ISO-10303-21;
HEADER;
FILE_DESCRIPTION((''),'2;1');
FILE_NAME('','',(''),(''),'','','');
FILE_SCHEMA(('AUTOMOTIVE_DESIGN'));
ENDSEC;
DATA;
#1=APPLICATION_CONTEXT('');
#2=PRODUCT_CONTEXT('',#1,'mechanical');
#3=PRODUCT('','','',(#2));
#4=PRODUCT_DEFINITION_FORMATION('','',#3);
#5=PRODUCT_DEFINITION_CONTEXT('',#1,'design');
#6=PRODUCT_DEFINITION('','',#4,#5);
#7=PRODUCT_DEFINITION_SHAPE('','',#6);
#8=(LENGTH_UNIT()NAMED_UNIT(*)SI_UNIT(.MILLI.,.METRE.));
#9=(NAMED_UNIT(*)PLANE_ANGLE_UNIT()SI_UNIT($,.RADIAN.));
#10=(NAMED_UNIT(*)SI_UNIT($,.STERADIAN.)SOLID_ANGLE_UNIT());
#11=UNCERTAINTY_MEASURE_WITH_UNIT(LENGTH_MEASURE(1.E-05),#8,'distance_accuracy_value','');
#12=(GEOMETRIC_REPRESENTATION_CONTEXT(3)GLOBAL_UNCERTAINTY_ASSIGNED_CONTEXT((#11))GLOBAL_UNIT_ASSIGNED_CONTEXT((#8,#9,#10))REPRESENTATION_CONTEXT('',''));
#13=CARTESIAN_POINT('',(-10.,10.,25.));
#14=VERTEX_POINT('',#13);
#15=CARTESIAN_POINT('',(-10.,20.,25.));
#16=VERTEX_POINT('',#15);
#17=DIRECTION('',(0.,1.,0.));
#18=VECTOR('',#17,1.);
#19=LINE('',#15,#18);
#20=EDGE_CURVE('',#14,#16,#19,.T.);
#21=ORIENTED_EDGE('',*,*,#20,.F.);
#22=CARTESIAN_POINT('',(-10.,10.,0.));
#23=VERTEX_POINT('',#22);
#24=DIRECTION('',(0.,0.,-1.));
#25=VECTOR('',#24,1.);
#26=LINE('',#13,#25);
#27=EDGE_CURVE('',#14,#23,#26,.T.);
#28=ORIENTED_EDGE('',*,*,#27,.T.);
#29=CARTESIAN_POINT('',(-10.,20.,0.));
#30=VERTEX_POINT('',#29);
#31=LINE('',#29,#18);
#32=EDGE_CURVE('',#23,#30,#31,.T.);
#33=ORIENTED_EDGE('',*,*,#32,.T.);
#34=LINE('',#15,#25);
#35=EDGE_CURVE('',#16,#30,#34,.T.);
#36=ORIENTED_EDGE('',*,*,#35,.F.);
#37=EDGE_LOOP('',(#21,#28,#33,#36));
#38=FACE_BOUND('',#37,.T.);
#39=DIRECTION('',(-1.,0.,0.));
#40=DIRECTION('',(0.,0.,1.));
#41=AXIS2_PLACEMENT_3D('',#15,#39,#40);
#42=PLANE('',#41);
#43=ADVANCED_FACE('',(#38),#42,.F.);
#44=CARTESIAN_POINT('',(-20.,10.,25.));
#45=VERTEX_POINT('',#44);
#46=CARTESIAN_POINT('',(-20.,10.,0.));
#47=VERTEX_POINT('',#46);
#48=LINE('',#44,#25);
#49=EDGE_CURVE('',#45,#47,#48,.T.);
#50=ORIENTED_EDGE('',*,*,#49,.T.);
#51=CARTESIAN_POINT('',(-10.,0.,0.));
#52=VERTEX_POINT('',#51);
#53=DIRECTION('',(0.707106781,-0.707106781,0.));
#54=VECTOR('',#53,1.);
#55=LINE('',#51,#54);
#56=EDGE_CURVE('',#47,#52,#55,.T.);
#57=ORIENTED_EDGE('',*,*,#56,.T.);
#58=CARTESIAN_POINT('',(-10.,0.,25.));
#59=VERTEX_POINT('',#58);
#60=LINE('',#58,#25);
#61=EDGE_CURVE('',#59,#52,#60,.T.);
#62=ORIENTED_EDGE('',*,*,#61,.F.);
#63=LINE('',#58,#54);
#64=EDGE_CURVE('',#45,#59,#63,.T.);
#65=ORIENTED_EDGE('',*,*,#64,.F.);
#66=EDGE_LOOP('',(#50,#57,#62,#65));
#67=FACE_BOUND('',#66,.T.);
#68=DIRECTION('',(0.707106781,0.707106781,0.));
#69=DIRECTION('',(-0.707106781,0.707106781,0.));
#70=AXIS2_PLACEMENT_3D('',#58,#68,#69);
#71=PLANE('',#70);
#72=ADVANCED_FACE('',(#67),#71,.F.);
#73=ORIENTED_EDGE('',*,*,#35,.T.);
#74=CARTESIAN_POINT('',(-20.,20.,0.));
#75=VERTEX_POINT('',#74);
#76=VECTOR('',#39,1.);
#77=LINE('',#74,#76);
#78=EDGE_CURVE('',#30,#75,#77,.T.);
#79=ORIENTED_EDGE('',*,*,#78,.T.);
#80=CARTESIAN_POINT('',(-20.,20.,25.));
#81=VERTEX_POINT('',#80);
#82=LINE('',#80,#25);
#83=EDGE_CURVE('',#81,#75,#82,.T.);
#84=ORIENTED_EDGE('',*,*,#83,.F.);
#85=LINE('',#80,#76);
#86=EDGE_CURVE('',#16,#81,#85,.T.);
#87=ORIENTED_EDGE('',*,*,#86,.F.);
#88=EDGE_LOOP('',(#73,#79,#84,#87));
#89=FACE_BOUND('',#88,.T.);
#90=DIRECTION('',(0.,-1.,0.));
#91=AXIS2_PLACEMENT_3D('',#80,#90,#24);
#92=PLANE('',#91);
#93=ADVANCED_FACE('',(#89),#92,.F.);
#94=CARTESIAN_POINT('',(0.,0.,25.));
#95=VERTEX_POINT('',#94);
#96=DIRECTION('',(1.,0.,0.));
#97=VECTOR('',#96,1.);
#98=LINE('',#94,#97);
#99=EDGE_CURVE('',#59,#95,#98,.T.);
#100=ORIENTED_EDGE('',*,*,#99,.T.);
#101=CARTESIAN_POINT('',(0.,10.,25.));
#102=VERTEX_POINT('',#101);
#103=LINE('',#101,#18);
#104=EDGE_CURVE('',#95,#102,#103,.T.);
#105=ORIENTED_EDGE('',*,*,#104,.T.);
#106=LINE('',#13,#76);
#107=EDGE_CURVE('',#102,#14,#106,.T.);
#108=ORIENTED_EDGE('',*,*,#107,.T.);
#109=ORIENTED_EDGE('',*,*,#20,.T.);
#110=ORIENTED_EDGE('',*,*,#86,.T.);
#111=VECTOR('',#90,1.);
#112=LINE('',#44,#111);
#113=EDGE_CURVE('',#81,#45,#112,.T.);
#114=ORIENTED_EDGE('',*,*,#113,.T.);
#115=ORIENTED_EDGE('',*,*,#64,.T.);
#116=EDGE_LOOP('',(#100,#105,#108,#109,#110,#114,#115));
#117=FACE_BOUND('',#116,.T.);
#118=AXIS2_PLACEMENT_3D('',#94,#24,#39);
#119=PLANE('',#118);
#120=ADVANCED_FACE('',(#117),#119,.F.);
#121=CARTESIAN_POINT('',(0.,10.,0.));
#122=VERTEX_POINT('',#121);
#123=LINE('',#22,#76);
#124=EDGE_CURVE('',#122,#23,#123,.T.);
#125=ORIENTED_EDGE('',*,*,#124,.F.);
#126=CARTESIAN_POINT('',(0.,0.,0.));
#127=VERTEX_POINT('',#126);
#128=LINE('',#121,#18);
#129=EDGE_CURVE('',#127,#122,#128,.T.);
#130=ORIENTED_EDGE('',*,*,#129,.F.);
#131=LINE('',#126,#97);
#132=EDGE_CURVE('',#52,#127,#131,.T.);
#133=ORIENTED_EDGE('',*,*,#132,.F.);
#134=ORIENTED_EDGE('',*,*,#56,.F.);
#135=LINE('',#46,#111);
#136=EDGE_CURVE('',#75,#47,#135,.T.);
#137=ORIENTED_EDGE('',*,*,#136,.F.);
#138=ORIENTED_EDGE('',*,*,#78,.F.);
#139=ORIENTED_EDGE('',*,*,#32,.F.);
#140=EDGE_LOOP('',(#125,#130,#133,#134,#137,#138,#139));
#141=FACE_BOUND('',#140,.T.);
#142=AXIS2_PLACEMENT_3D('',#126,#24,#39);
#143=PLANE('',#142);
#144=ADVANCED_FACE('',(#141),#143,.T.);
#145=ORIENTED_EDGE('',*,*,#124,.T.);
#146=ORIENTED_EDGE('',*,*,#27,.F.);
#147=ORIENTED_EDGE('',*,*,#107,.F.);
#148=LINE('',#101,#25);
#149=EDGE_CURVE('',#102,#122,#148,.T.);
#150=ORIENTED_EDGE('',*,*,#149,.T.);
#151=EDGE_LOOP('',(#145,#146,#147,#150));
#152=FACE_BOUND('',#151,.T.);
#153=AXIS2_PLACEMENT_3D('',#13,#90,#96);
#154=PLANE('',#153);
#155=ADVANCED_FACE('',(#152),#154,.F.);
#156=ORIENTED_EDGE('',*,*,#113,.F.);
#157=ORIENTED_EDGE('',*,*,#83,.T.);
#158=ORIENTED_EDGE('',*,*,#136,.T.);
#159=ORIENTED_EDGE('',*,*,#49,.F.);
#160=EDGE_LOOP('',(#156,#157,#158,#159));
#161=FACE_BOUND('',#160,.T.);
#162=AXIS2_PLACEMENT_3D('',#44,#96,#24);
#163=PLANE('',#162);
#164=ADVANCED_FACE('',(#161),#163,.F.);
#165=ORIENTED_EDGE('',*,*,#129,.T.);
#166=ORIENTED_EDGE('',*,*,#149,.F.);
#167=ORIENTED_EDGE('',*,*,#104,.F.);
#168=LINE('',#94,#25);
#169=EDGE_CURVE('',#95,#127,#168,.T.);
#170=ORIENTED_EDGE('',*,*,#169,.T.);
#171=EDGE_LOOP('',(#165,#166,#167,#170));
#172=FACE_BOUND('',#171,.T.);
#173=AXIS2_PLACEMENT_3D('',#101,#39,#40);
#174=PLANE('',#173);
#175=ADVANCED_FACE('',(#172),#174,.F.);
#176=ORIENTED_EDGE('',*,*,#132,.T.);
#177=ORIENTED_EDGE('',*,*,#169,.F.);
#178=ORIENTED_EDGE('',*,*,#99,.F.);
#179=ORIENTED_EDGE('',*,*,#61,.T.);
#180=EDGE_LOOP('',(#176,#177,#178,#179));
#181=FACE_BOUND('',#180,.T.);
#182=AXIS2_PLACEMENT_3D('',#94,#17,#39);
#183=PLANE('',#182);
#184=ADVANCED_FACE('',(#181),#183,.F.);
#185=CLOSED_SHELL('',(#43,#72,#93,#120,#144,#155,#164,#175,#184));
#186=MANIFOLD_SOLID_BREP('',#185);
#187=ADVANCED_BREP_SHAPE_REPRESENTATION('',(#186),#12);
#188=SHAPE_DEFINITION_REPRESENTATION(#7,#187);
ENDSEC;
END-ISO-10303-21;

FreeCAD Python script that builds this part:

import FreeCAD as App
import Part
import Sketcher

V = App.Vector


def add_polygon(sketch, points):
    """Adds a closed chain of lines whose ends are joined by coincident constraints."""
    first, n = sketch.GeometryCount, len(points)
    for a, b in zip(points, points[1:] + points[:1]):
        sketch.addGeometry(Part.LineSegment(App.Vector(*a, 0), App.Vector(*b, 0)), False)
    for i in range(n):
        sketch.addConstraint(Sketcher.Constraint("Coincident", first + i, 2, first + (i + 1) % n, 1))

doc = App.newDocument("Part")
body = doc.addObject("PartDesign::Body", "Body")

# Sketch on XY plane
sketch1 = body.newObject("Sketcher::SketchObject", "Sketch")
sketch1.AttachmentSupport = (doc.getObject("XY_Plane"), [""])
sketch1.MapMode = "FlatFace"
add_polygon(sketch1, [(-10, 20), (-20, 20), (-20, 10), (-10, 0), (0, 0), (0, 10), (-10, 10)])  # lines 0-6
sketch1.addConstraint(Sketcher.Constraint("Horizontal", 0))
sketch1.addConstraint(Sketcher.Constraint("Vertical", 1))
sketch1.addConstraint(Sketcher.Constraint("Horizontal", 3))
sketch1.addConstraint(Sketcher.Constraint("Vertical", 4))
sketch1.addConstraint(Sketcher.Constraint("Horizontal", 5))
sketch1.addConstraint(Sketcher.Constraint("Vertical", 6))
sketch1.addConstraint(Sketcher.Constraint("Coincident", 3, 2, -1, 1))
sketch1.addConstraint(Sketcher.Constraint("Horizontal", 1, 2, 4, 2))
sketch1.addConstraint(Sketcher.Constraint("Vertical", 2, 2, 5, 2))
sketch1.addConstraint(Sketcher.Constraint("Equal", 0, 3))
sketch1.addConstraint(Sketcher.Constraint("Equal", 5, 1))
sketch1.addConstraint(Sketcher.Constraint("Equal", 1, 4))
sketch1.addConstraint(Sketcher.Constraint("DistanceX", 0, 2, 0, 1, 10.0))
pad1 = body.newObject("PartDesign::Pad", "Pad")
pad1.Profile = sketch1
pad1.Length = 25

doc.recompute()
